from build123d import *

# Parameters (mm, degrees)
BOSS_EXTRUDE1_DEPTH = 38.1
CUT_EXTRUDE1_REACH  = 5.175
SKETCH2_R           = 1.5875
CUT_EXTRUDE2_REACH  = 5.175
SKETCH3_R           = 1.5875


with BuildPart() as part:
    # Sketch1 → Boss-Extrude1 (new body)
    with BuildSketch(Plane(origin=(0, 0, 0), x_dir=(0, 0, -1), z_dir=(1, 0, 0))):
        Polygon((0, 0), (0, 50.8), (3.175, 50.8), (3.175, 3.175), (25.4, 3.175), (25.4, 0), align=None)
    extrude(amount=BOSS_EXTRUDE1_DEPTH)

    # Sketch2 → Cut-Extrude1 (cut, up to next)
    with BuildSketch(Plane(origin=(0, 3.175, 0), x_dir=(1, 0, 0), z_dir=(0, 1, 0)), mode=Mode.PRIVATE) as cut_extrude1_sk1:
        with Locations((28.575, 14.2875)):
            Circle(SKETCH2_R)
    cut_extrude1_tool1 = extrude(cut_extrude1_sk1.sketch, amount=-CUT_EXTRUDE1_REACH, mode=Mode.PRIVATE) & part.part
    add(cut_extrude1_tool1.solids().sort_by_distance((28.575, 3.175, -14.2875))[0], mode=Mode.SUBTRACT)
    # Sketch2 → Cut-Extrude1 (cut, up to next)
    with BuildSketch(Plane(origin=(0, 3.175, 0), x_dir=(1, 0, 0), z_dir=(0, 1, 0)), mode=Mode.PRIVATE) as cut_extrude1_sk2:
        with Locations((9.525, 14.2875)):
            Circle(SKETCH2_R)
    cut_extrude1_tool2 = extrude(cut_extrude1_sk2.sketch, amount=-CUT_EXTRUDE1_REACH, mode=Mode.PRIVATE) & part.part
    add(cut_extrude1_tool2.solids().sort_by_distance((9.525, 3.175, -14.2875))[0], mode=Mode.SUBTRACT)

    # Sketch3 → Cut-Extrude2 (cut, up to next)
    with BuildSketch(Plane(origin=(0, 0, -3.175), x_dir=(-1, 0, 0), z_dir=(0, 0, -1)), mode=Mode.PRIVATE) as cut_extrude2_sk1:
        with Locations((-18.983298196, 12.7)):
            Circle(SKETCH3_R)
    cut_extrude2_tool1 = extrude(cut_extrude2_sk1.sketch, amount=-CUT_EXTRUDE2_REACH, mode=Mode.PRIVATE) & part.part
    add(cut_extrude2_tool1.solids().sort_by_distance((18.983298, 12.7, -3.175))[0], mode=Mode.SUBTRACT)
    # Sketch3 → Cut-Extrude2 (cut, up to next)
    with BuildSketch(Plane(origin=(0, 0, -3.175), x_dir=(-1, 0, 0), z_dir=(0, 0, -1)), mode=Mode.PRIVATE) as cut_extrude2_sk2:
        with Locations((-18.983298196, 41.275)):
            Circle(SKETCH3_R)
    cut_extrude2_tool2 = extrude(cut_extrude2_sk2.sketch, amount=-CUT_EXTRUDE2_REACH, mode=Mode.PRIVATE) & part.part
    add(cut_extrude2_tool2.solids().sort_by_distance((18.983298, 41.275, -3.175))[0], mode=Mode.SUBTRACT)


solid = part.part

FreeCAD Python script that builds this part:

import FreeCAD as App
import Part
import Sketcher
Q = App.Units.Quantity

doc = App.newDocument("Part")
body = doc.addObject("PartDesign::Body", "Body")

# Sketch on YZ plane
sketch1 = body.newObject("Sketcher::SketchObject", "Sketch")
sketch1.AttachmentSupport = (doc.getObject("YZ_Plane"), [""])
sketch1.MapMode = "FlatFace"
sketch1.addGeometry([
    Part.LineSegment(App.Vector(50.8, 0, 0), App.Vector(0, 0, 0)),  # 0
    Part.LineSegment(App.Vector(0, 0, 0), App.Vector(0, -25.4, 0)),  # 1
    Part.LineSegment(App.Vector(0, -25.4, 0), App.Vector(3.175, -25.4, 0)),  # 2
    Part.LineSegment(App.Vector(3.175, -25.4, 0), App.Vector(3.175, -3.175, 0)),  # 3
    Part.LineSegment(App.Vector(3.175, -3.175, 0), App.Vector(50.8, -3.175, 0)),  # 4
    Part.LineSegment(App.Vector(50.8, -3.175, 0), App.Vector(50.8, 0, 0)),  # 5
], False)
sketch1.addConstraint([
    Sketcher.Constraint("Coincident", 0, 2, 1, 1),
    Sketcher.Constraint("Coincident", 1, 2, 2, 1),
    Sketcher.Constraint("Coincident", 2, 2, 3, 1),
    Sketcher.Constraint("Coincident", 3, 2, 4, 1),
    Sketcher.Constraint("Coincident", 4, 2, 5, 1),
    Sketcher.Constraint("Coincident", 5, 2, 0, 1),
    Sketcher.Constraint("Horizontal", 0),
    Sketcher.Constraint("Vertical", 1),
    Sketcher.Constraint("Horizontal", 2),
    Sketcher.Constraint("Vertical", 3),
    Sketcher.Constraint("Horizontal", 4),
    Sketcher.Constraint("Vertical", 5),
    Sketcher.Constraint("Coincident", 0, 2, -1, 1),
    Sketcher.Constraint("Equal", 2, 5),
    Sketcher.Constraint("DistanceX", 0, 2, 0, 1, Q("2 in")),
    Sketcher.Constraint("DistanceY", 1, 2, 1, 1, Q("1 in")),
    Sketcher.Constraint("DistanceX", 2, 1, 2, 2, Q("0.125 in")),
])
pad1 = body.newObject("PartDesign::Pad", "Pad")
pad1.Profile = sketch1
pad1.Length = Q("1.5 in")

# Sketch on XZ plane
sketch2 = body.newObject("Sketcher::SketchObject", "Sketch001")
sketch2.AttachmentSupport = (doc.getObject("XZ_Plane"), [""])
sketch2.MapMode = "FlatFace"
sketch2.AttachmentOffset = App.Placement(App.Vector(0, 0, -0.125 * 25.4), App.Rotation())
sketch2.addGeometry(Part.Circle(App.Vector(28.575, -14.2875, 0), App.Vector(0, 0, 1), 1.5875), False)
sketch2.addConstraint([
    Sketcher.Constraint("Diameter", 0, Q("0.125 in")),
    Sketcher.Constraint("DistanceX", -1, 1, 0, 3, Q("1.125 in")),
    Sketcher.Constraint("DistanceY", 0, 3, -1, 1, Q("0.5625 in")),
])
pocket1 = body.newObject("PartDesign::Pocket", "Pocket")
pocket1.Profile = sketch2
pocket1.Type = "UpToFirst"
pocket1.Reversed = True

# Sketch on XZ plane
sketch3 = body.newObject("Sketcher::SketchObject", "Sketch002")
sketch3.AttachmentSupport = (doc.getObject("XZ_Plane"), [""])
sketch3.MapMode = "FlatFace"
sketch3.AttachmentOffset = App.Placement(App.Vector(0, 0, -0.125 * 25.4), App.Rotation())
sketch3.addGeometry(Part.Circle(App.Vector(9.525, -14.2875, 0), App.Vector(0, 0, 1), 1.5875), False)
sketch3.addConstraint([
    Sketcher.Constraint("Diameter", 0, Q("0.125 in")),
    Sketcher.Constraint("DistanceX", -1, 1, 0, 3, Q("0.375 in")),
    Sketcher.Constraint("DistanceY", 0, 3, -1, 1, Q("0.5625 in")),
])
pocket2 = body.newObject("PartDesign::Pocket", "Pocket001")
pocket2.Profile = sketch3
pocket2.Type = "UpToFirst"
pocket2.Reversed = True

# Sketch on XY plane
sketch4 = body.newObject("Sketcher::SketchObject", "Sketch003")
sketch4.AttachmentSupport = (doc.getObject("XY_Plane"), [""])
sketch4.MapMode = "FlatFace"
sketch4.AttachmentOffset = App.Placement(App.Vector(0, 0, -0.125 * 25.4), App.Rotation())
sketch4.addGeometry(Part.Circle(App.Vector(18.983298, 12.7, 0), App.Vector(0, 0, 1), 1.5875), False)
sketch4.addConstraint([
    Sketcher.Constraint("Diameter", 0, Q("0.125 in")),
    Sketcher.Constraint("DistanceY", -1, 1, 0, 3, Q("0.5 in")),
    Sketcher.Constraint("DistanceX", -1, 1, 0, 3, Q("18.983298 mm")),
])
pocket3 = body.newObject("PartDesign::Pocket", "Pocket002")
pocket3.Profile = sketch4
pocket3.Type = "UpToFirst"
pocket3.Reversed = True

# Sketch on XY plane
sketch5 = body.newObject("Sketcher::SketchObject", "Sketch004")
sketch5.AttachmentSupport = (doc.getObject("XY_Plane"), [""])
sketch5.MapMode = "FlatFace"
sketch5.AttachmentOffset = App.Placement(App.Vector(0, 0, -0.125 * 25.4), App.Rotation())
sketch5.addGeometry(Part.Circle(App.Vector(18.983298, 41.275, 0), App.Vector(0, 0, 1), 1.5875), False)
sketch5.addConstraint([
    Sketcher.Constraint("Diameter", 0, Q("0.125 in")),
    Sketcher.Constraint("DistanceY", -1, 1, 0, 3, Q("1.625 in")),
    Sketcher.Constraint("DistanceX", -1, 1, 0, 3, Q("18.983298 mm")),
])
pocket4 = body.newObject("PartDesign::Pocket", "Pocket003")
pocket4.Profile = sketch5
pocket4.Type = "UpToFirst"
pocket4.Reversed = True

doc.recompute()
